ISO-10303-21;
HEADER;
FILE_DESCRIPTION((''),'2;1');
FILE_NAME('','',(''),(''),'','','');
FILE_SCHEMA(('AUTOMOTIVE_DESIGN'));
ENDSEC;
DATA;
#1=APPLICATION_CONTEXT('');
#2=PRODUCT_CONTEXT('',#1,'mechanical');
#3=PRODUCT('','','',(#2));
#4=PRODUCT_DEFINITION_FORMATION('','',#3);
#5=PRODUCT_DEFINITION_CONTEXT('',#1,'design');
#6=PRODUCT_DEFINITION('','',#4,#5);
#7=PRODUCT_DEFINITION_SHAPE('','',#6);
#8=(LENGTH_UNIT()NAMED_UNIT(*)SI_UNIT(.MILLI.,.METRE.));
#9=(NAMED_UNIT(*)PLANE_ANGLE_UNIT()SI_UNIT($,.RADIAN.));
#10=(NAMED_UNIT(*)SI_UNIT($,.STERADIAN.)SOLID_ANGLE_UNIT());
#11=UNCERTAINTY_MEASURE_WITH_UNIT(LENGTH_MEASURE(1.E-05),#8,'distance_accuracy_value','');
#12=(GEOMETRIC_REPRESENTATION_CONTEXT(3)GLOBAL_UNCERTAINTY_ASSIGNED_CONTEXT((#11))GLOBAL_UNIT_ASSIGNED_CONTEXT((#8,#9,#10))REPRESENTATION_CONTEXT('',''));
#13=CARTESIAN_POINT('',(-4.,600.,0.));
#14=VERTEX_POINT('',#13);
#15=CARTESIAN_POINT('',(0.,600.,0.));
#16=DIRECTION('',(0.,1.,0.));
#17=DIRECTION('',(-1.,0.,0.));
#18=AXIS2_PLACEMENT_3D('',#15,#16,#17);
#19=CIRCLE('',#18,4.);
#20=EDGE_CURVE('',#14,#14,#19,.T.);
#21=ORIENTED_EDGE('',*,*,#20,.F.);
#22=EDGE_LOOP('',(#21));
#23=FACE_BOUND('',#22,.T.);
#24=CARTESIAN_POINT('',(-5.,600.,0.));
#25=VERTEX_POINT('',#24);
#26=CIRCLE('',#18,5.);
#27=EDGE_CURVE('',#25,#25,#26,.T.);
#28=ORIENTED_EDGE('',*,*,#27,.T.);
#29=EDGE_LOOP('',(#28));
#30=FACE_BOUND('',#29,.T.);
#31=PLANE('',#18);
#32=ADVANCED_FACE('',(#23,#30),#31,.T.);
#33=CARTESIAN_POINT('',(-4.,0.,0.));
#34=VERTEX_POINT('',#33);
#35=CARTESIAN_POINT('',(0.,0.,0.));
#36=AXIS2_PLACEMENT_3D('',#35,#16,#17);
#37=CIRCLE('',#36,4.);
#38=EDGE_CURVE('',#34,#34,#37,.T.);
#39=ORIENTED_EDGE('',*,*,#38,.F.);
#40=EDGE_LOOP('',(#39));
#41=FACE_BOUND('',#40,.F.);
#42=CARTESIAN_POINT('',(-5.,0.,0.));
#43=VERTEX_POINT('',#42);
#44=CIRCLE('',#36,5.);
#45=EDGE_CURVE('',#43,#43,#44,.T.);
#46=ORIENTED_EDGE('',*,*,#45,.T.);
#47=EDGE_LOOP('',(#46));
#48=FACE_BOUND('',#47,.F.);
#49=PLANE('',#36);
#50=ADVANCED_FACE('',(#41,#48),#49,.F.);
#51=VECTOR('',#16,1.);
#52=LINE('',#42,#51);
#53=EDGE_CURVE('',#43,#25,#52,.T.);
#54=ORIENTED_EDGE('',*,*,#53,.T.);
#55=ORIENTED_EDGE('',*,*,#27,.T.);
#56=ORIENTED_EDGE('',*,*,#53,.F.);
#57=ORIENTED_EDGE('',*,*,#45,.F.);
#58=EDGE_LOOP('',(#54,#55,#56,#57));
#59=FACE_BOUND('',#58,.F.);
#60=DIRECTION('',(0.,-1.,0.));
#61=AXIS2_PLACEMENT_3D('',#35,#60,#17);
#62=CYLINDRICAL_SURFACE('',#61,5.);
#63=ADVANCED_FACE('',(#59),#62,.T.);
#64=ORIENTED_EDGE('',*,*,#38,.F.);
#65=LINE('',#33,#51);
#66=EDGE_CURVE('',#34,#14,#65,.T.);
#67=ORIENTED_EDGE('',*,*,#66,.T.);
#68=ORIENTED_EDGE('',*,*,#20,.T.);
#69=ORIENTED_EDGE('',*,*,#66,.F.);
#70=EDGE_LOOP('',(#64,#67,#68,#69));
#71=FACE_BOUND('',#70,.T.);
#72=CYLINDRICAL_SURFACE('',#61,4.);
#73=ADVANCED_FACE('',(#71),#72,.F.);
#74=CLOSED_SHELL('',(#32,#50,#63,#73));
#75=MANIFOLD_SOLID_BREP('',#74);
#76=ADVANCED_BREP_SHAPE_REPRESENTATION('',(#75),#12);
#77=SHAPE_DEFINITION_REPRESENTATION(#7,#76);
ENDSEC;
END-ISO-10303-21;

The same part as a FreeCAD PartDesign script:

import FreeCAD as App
import Part
import Sketcher
from FreeCAD import Vector
Q = App.Units.Quantity

doc = App.newDocument("Part")
body = doc.addObject("PartDesign::Body", "Body")

sketch1 = body.newObject("Sketcher::SketchObject", "Sketch")
sketch1.AttachmentSupport = (doc.getObject("XZ_Plane"), [""])
sketch1.MapMode = "FlatFace"
sketch1.addGeometry([
    Part.Circle(Vector(0, 0, 0), Vector(0, 0, 1), 5),
    Part.Circle(Vector(0, 0, 0), Vector(0, 0, 1), 4),
], False)
sketch1.addConstraint([
    Sketcher.Constraint("Coincident", 0, 3, -1, 1),
    Sketcher.Constraint("Coincident", 1, 3, -1, 1),
    Sketcher.Constraint("Diameter", 0, Q("10 mm")),
    Sketcher.Constraint("Diameter", 1, Q("8 mm")),
])
pad1 = body.newObject("PartDesign::Pad", "Pad")
pad1.Profile = sketch1
pad1.Length = 600
pad1.Reversed = True

doc.recompute()
